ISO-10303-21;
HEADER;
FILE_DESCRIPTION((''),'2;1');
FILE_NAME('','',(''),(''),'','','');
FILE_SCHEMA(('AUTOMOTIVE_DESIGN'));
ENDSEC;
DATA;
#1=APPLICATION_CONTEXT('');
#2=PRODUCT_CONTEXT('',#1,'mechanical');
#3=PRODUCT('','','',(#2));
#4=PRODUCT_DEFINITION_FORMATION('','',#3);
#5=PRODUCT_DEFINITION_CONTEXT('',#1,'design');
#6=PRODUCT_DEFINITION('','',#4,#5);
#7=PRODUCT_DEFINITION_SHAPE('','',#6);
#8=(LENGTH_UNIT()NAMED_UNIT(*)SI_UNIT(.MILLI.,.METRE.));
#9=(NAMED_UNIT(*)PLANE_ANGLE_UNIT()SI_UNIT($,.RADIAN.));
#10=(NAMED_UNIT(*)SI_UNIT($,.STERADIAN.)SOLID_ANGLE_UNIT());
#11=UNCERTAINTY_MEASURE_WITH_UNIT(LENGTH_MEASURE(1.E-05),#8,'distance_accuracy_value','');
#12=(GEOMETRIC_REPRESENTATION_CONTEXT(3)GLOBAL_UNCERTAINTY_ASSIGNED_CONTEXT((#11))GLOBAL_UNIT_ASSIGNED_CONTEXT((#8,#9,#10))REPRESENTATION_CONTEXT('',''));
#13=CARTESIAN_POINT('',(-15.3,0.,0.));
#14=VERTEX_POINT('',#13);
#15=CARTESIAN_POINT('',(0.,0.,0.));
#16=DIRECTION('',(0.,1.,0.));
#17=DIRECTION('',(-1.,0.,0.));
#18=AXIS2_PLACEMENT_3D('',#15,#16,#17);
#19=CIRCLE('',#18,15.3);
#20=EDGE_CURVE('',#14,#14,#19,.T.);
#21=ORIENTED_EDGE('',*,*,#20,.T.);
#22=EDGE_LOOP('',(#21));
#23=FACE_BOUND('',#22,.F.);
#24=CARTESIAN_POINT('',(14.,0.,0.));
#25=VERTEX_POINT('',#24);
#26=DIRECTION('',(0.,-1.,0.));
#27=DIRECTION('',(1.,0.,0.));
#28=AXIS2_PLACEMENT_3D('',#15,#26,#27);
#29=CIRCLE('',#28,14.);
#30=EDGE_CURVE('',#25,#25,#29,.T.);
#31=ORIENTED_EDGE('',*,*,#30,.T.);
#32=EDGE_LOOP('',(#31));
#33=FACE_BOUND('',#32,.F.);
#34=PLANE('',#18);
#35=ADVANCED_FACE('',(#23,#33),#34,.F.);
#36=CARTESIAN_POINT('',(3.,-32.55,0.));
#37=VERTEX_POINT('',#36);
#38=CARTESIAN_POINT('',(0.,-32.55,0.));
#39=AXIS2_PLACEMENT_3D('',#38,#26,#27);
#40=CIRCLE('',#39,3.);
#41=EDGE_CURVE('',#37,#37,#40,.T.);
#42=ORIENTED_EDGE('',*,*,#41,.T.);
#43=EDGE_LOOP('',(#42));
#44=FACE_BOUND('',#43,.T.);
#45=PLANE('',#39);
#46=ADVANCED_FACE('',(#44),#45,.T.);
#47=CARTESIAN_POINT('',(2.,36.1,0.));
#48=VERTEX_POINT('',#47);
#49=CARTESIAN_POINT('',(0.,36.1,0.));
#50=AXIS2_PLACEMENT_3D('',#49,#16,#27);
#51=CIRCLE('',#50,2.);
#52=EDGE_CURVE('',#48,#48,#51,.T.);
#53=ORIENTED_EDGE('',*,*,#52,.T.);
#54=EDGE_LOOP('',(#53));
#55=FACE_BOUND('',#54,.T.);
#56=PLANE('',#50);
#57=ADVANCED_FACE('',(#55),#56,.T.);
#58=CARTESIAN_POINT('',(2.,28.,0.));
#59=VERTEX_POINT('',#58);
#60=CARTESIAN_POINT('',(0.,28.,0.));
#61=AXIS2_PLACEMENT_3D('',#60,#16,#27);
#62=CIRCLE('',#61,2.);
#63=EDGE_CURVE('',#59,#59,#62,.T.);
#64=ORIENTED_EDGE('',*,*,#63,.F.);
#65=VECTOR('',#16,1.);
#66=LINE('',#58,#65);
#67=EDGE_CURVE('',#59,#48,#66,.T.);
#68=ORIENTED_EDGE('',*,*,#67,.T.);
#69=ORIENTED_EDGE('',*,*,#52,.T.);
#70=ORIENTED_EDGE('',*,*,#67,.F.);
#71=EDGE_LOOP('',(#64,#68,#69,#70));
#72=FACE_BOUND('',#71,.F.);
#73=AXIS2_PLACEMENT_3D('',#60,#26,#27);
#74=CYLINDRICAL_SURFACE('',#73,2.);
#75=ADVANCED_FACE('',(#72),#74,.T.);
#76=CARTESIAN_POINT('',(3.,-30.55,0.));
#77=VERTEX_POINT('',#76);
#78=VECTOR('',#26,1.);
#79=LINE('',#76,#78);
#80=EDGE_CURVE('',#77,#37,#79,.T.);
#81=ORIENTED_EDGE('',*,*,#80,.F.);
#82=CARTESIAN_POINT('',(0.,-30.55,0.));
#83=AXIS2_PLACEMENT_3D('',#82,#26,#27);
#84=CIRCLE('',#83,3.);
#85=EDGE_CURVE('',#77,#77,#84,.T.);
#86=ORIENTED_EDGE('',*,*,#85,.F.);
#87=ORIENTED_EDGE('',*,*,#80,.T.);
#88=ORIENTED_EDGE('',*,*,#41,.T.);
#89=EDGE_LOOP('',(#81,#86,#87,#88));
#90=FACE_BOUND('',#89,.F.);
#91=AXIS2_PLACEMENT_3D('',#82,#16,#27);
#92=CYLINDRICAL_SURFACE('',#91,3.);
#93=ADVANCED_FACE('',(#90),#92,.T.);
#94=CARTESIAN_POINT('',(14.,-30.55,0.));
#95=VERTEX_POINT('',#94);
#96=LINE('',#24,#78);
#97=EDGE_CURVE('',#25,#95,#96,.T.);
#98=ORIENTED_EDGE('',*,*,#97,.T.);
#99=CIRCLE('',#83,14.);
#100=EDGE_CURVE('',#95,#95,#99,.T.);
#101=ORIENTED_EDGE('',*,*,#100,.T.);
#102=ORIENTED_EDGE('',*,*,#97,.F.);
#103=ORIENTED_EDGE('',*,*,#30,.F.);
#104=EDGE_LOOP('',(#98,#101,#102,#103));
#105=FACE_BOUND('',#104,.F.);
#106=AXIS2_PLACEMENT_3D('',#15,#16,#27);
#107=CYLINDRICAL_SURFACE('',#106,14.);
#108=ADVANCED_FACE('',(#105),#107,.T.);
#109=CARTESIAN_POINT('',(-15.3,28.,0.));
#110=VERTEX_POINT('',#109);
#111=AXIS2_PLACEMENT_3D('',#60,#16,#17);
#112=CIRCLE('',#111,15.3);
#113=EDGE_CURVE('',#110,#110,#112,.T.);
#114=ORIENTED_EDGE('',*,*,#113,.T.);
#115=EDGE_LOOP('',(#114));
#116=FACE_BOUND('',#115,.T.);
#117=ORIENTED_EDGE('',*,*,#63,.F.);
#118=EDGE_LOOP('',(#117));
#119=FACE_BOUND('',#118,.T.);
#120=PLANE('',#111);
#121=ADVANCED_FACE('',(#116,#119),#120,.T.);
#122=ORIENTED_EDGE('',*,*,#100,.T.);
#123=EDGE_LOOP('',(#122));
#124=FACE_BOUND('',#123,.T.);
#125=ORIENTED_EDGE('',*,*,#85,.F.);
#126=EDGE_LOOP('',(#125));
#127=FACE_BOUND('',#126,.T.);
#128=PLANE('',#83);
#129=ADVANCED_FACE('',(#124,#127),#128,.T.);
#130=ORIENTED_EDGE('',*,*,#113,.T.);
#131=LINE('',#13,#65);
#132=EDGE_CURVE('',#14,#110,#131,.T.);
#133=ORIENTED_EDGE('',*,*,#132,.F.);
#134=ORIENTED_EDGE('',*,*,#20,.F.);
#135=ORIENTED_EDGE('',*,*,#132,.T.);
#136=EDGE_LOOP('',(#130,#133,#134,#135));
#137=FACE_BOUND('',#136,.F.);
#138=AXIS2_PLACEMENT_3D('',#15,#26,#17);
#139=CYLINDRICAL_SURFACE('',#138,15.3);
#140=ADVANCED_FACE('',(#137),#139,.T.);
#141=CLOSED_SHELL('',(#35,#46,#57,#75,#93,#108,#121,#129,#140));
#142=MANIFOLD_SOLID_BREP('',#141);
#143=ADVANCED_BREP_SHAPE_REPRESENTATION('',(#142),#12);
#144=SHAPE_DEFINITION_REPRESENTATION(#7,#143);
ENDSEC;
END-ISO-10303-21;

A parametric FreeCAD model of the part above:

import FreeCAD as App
import Part
import Sketcher

doc = App.newDocument("Part")
body = doc.addObject("PartDesign::Body", "Body")

# Sketch on XZ plane
sketch1 = body.newObject("Sketcher::SketchObject", "Sketch")
sketch1.AttachmentSupport = (doc.getObject("XZ_Plane"), [""])
sketch1.MapMode = "FlatFace"
sketch1.addGeometry(Part.Circle(App.Vector(0, 0, 0), App.Vector(0, 0, 1), 15), False)
sketch1.addConstraint(Sketcher.Constraint("Coincident", 0, 3, -1, 1))
sketch1.addConstraint(Sketcher.Constraint("Diameter", 0, 30.6))
pad1 = body.newObject("PartDesign::Pad", "Pad")
pad1.Profile = sketch1
pad1.Length = 28
pad1.Reversed = True

# Sketch on XZ plane
sketch2 = body.newObject("Sketcher::SketchObject", "Sketch001")
sketch2.AttachmentSupport = (doc.getObject("XZ_Plane"), [""])
sketch2.MapMode = "FlatFace"
sketch2.addGeometry(Part.Circle(App.Vector(0, 0, 0), App.Vector(0, 0, 1), 14), False)
sketch2.addConstraint(Sketcher.Constraint("Coincident", 0, 3, -1, 1))
sketch2.addConstraint(Sketcher.Constraint("Diameter", 0, 28.0))
pad2 = body.newObject("PartDesign::Pad", "Pad001")
pad2.Profile = sketch2
pad2.Length = 30.55

# Sketch on XZ plane
sketch3 = body.newObject("Sketcher::SketchObject", "Sketch002")
sketch3.AttachmentSupport = (doc.getObject("XZ_Plane"), [""])
sketch3.MapMode = "FlatFace"
sketch3.AttachmentOffset = App.Placement(App.Vector(0, 0, 30.55), App.Rotation())
sketch3.addGeometry(Part.Circle(App.Vector(0, 0, 0), App.Vector(0, 0, 1), 3), False)
sketch3.addConstraint(Sketcher.Constraint("Coincident", 0, 3, -1, 1))
sketch3.addConstraint(Sketcher.Constraint("Diameter", 0, 6.0))
pad3 = body.newObject("PartDesign::Pad", "Pad002")
pad3.Profile = sketch3
pad3.Length = 2

# Sketch on XZ plane
sketch4 = body.newObject("Sketcher::SketchObject", "Sketch003")
sketch4.AttachmentSupport = (doc.getObject("XZ_Plane"), [""])
sketch4.MapMode = "FlatFace"
sketch4.AttachmentOffset = App.Placement(App.Vector(0, 0, -28), App.Rotation())
sketch4.addGeometry(Part.Circle(App.Vector(0, 0, 0), App.Vector(0, 0, 1), 2), False)
sketch4.addConstraint(Sketcher.Constraint("Coincident", 0, 3, -1, 1))
sketch4.addConstraint(Sketcher.Constraint("Diameter", 0, 4.0))
pad4 = body.newObject("PartDesign::Pad", "Pad003")
pad4.Profile = sketch4
pad4.Length = 8.1
pad4.Reversed = True

doc.recompute()
